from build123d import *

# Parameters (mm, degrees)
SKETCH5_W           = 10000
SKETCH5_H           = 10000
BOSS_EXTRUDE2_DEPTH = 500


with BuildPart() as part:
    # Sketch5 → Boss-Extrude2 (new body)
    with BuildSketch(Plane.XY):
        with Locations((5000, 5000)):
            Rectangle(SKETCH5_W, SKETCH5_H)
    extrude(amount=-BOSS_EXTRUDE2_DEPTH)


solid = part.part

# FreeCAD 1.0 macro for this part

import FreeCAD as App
import Part
import Sketcher


def add_polygon(sketch, points):
    """Adds a closed chain of lines whose ends are joined by coincident constraints."""
    first, n = sketch.GeometryCount, len(points)
    for a, b in zip(points, points[1:] + points[:1]):
        sketch.addGeometry(Part.LineSegment(App.Vector(*a, 0), App.Vector(*b, 0)), False)
    for i in range(n):
        sketch.addConstraint(Sketcher.Constraint("Coincident", first + i, 2, first + (i + 1) % n, 1))

doc = App.newDocument("Part")
body = doc.addObject("PartDesign::Body", "Body")

sketch1 = body.newObject("Sketcher::SketchObject", "Sketch")
sketch1.AttachmentSupport = (doc.getObject("XY_Plane"), [""])
sketch1.MapMode = "FlatFace"
add_polygon(sketch1, [(0, 10000), (0, 0), (10000, 0), (10000, 10000)])
sketch1.addConstraint([
    Sketcher.Constraint("Vertical", 0),
    Sketcher.Constraint("Horizontal", 1),
    Sketcher.Constraint("Vertical", 2),
    Sketcher.Constraint("Horizontal", 3),
    Sketcher.Constraint("Coincident", 0, 2, -1, 1),
    Sketcher.Constraint("Equal", 3, 0),
    Sketcher.Constraint("DistanceX", 1, 1, 1, 2, 10000.0),
])
pad1 = body.newObject("PartDesign::Pad", "Pad")
pad1.Profile = sketch1
pad1.Length = 500
pad1.Reversed = True

doc.recompute()
